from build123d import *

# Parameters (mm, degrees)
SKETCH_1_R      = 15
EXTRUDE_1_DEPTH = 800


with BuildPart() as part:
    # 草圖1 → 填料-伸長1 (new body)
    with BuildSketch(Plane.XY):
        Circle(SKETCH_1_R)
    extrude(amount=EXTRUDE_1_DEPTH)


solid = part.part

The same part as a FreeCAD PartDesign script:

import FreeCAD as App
import Part
import Sketcher
from FreeCAD import Vector
Q = App.Units.Quantity

doc = App.newDocument("Part")
body = doc.addObject("PartDesign::Body", "Body")

sketch1 = body.newObject("Sketcher::SketchObject", "Sketch")
sketch1.AttachmentSupport = (doc.getObject("XY_Plane"), [""])
sketch1.MapMode = "FlatFace"
sketch1.addGeometry(Part.Circle(Vector(0, 0, 0), Vector(0, 0, 1), 15), False)
sketch1.addConstraint([
    Sketcher.Constraint("Coincident", 0, 3, -1, 1),
    Sketcher.Constraint("Diameter", 0, Q("30 mm")),
])
pad1 = body.newObject("PartDesign::Pad", "Pad")
pad1.Profile = sketch1
pad1.Length = 800

doc.recompute()
